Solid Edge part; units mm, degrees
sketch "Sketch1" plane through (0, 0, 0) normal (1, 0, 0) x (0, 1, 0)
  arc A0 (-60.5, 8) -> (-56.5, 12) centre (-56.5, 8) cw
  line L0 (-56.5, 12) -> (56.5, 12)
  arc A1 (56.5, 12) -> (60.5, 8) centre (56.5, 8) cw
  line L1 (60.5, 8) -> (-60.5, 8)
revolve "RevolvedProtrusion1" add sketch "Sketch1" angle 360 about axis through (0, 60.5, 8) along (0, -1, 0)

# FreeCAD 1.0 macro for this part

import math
import FreeCAD as App
import Part
import Sketcher
Q = App.Units.Quantity

doc = App.newDocument("Part")
body = doc.addObject("PartDesign::Body", "Body")

sketch1 = body.newObject("Sketcher::SketchObject", "Sketch")
sketch1.AttachmentSupport = (doc.getObject("YZ_Plane"), [""])
sketch1.MapMode = "FlatFace"
sketch1.addGeometry([
    Part.ArcOfCircle(Part.Circle(App.Vector(-56.5, 8, 0), App.Vector(0, 0, 1), 4), math.radians(90), math.radians(180)),
    Part.LineSegment(App.Vector(-60.5, 8, 0), App.Vector(60.5, 8, 0)),
    Part.ArcOfCircle(Part.Circle(App.Vector(56.5, 8, 0), App.Vector(0, 0, 1), 4), math.radians(0), math.radians(90)),
    Part.LineSegment(App.Vector(56.5, 12, 0), App.Vector(-56.5, 12, 0)),
], False)
sketch1.addGeometry(Part.LineSegment(App.Vector(60.5, 8, 0), App.Vector(-60.5, 8, 0)), True)
sketch1.addConstraint([
    Sketcher.Constraint("Coincident", 0, 2, 1, 1),
    Sketcher.Constraint("Coincident", 1, 2, 2, 1),
    Sketcher.Constraint("Tangent", 2, 2, 3, 1),
    Sketcher.Constraint("Tangent", 3, 2, 0, 1),
    Sketcher.Constraint("Horizontal", 1),
    Sketcher.Constraint("Horizontal", 3),
    Sketcher.Constraint("Horizontal", 4),
    Sketcher.Constraint("Coincident", 4, 1, 1, 2),
    Sketcher.Constraint("Equal", 0, 2),
    Sketcher.Constraint("Horizontal", 2, 3, 0, 2),
    Sketcher.Constraint("Equal", 1, 4),
    Sketcher.Constraint("Radius", 0, Q("4 mm")),
    Sketcher.Constraint("DistanceX", 1, 1, 1, 2, Q("121 mm")),
    Sketcher.Constraint("DistanceY", -1, 1, 0, 3, Q("8 mm")),
    Sketcher.Constraint("DistanceX", 0, 3, -1, 1, Q("56.5 mm")),
])
revolution = body.newObject("PartDesign::Revolution", "Revolution")
revolution.Profile = sketch1
revolution.ReferenceAxis = (sketch1, ["Axis0"])
revolution.Angle = 360

doc.recompute()
